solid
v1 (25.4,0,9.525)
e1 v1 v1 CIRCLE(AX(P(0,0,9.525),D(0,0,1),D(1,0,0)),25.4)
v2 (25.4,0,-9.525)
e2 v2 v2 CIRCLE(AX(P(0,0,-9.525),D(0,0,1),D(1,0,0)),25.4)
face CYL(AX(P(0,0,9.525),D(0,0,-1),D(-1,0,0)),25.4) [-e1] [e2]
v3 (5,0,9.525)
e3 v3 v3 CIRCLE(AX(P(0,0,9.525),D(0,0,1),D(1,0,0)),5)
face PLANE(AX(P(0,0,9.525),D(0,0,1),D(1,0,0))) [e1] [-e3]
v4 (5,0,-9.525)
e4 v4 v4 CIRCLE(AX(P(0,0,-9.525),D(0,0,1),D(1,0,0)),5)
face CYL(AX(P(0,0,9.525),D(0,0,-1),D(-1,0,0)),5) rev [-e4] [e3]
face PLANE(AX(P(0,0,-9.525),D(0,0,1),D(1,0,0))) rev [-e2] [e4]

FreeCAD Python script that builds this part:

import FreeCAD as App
import Part
import Sketcher
Q = App.Units.Quantity

doc = App.newDocument("Part")
body = doc.addObject("PartDesign::Body", "Body")

# Sketch on XY plane
sketch1 = body.newObject("Sketcher::SketchObject", "Sketch")
sketch1.AttachmentSupport = (doc.getObject("XY_Plane"), [""])
sketch1.MapMode = "FlatFace"
sketch1.addGeometry([
    Part.Circle(App.Vector(0, 0, 0), App.Vector(0, 0, 1), 25.4),
    Part.Circle(App.Vector(0, 0, 0), App.Vector(0, 0, 1), 5),
], False)
sketch1.addConstraint([
    Sketcher.Constraint("Coincident", 0, 3, -1, 1),
    Sketcher.Constraint("Coincident", 1, 3, -1, 1),
    Sketcher.Constraint("Diameter", 0, Q("2 in")),
    Sketcher.Constraint("Diameter", 1, 10.0),
])
pad1 = body.newObject("PartDesign::Pad", "Pad")
pad1.Profile = sketch1
pad1.Length = Q("0.75 in")
pad1.Midplane = True

doc.recompute()
